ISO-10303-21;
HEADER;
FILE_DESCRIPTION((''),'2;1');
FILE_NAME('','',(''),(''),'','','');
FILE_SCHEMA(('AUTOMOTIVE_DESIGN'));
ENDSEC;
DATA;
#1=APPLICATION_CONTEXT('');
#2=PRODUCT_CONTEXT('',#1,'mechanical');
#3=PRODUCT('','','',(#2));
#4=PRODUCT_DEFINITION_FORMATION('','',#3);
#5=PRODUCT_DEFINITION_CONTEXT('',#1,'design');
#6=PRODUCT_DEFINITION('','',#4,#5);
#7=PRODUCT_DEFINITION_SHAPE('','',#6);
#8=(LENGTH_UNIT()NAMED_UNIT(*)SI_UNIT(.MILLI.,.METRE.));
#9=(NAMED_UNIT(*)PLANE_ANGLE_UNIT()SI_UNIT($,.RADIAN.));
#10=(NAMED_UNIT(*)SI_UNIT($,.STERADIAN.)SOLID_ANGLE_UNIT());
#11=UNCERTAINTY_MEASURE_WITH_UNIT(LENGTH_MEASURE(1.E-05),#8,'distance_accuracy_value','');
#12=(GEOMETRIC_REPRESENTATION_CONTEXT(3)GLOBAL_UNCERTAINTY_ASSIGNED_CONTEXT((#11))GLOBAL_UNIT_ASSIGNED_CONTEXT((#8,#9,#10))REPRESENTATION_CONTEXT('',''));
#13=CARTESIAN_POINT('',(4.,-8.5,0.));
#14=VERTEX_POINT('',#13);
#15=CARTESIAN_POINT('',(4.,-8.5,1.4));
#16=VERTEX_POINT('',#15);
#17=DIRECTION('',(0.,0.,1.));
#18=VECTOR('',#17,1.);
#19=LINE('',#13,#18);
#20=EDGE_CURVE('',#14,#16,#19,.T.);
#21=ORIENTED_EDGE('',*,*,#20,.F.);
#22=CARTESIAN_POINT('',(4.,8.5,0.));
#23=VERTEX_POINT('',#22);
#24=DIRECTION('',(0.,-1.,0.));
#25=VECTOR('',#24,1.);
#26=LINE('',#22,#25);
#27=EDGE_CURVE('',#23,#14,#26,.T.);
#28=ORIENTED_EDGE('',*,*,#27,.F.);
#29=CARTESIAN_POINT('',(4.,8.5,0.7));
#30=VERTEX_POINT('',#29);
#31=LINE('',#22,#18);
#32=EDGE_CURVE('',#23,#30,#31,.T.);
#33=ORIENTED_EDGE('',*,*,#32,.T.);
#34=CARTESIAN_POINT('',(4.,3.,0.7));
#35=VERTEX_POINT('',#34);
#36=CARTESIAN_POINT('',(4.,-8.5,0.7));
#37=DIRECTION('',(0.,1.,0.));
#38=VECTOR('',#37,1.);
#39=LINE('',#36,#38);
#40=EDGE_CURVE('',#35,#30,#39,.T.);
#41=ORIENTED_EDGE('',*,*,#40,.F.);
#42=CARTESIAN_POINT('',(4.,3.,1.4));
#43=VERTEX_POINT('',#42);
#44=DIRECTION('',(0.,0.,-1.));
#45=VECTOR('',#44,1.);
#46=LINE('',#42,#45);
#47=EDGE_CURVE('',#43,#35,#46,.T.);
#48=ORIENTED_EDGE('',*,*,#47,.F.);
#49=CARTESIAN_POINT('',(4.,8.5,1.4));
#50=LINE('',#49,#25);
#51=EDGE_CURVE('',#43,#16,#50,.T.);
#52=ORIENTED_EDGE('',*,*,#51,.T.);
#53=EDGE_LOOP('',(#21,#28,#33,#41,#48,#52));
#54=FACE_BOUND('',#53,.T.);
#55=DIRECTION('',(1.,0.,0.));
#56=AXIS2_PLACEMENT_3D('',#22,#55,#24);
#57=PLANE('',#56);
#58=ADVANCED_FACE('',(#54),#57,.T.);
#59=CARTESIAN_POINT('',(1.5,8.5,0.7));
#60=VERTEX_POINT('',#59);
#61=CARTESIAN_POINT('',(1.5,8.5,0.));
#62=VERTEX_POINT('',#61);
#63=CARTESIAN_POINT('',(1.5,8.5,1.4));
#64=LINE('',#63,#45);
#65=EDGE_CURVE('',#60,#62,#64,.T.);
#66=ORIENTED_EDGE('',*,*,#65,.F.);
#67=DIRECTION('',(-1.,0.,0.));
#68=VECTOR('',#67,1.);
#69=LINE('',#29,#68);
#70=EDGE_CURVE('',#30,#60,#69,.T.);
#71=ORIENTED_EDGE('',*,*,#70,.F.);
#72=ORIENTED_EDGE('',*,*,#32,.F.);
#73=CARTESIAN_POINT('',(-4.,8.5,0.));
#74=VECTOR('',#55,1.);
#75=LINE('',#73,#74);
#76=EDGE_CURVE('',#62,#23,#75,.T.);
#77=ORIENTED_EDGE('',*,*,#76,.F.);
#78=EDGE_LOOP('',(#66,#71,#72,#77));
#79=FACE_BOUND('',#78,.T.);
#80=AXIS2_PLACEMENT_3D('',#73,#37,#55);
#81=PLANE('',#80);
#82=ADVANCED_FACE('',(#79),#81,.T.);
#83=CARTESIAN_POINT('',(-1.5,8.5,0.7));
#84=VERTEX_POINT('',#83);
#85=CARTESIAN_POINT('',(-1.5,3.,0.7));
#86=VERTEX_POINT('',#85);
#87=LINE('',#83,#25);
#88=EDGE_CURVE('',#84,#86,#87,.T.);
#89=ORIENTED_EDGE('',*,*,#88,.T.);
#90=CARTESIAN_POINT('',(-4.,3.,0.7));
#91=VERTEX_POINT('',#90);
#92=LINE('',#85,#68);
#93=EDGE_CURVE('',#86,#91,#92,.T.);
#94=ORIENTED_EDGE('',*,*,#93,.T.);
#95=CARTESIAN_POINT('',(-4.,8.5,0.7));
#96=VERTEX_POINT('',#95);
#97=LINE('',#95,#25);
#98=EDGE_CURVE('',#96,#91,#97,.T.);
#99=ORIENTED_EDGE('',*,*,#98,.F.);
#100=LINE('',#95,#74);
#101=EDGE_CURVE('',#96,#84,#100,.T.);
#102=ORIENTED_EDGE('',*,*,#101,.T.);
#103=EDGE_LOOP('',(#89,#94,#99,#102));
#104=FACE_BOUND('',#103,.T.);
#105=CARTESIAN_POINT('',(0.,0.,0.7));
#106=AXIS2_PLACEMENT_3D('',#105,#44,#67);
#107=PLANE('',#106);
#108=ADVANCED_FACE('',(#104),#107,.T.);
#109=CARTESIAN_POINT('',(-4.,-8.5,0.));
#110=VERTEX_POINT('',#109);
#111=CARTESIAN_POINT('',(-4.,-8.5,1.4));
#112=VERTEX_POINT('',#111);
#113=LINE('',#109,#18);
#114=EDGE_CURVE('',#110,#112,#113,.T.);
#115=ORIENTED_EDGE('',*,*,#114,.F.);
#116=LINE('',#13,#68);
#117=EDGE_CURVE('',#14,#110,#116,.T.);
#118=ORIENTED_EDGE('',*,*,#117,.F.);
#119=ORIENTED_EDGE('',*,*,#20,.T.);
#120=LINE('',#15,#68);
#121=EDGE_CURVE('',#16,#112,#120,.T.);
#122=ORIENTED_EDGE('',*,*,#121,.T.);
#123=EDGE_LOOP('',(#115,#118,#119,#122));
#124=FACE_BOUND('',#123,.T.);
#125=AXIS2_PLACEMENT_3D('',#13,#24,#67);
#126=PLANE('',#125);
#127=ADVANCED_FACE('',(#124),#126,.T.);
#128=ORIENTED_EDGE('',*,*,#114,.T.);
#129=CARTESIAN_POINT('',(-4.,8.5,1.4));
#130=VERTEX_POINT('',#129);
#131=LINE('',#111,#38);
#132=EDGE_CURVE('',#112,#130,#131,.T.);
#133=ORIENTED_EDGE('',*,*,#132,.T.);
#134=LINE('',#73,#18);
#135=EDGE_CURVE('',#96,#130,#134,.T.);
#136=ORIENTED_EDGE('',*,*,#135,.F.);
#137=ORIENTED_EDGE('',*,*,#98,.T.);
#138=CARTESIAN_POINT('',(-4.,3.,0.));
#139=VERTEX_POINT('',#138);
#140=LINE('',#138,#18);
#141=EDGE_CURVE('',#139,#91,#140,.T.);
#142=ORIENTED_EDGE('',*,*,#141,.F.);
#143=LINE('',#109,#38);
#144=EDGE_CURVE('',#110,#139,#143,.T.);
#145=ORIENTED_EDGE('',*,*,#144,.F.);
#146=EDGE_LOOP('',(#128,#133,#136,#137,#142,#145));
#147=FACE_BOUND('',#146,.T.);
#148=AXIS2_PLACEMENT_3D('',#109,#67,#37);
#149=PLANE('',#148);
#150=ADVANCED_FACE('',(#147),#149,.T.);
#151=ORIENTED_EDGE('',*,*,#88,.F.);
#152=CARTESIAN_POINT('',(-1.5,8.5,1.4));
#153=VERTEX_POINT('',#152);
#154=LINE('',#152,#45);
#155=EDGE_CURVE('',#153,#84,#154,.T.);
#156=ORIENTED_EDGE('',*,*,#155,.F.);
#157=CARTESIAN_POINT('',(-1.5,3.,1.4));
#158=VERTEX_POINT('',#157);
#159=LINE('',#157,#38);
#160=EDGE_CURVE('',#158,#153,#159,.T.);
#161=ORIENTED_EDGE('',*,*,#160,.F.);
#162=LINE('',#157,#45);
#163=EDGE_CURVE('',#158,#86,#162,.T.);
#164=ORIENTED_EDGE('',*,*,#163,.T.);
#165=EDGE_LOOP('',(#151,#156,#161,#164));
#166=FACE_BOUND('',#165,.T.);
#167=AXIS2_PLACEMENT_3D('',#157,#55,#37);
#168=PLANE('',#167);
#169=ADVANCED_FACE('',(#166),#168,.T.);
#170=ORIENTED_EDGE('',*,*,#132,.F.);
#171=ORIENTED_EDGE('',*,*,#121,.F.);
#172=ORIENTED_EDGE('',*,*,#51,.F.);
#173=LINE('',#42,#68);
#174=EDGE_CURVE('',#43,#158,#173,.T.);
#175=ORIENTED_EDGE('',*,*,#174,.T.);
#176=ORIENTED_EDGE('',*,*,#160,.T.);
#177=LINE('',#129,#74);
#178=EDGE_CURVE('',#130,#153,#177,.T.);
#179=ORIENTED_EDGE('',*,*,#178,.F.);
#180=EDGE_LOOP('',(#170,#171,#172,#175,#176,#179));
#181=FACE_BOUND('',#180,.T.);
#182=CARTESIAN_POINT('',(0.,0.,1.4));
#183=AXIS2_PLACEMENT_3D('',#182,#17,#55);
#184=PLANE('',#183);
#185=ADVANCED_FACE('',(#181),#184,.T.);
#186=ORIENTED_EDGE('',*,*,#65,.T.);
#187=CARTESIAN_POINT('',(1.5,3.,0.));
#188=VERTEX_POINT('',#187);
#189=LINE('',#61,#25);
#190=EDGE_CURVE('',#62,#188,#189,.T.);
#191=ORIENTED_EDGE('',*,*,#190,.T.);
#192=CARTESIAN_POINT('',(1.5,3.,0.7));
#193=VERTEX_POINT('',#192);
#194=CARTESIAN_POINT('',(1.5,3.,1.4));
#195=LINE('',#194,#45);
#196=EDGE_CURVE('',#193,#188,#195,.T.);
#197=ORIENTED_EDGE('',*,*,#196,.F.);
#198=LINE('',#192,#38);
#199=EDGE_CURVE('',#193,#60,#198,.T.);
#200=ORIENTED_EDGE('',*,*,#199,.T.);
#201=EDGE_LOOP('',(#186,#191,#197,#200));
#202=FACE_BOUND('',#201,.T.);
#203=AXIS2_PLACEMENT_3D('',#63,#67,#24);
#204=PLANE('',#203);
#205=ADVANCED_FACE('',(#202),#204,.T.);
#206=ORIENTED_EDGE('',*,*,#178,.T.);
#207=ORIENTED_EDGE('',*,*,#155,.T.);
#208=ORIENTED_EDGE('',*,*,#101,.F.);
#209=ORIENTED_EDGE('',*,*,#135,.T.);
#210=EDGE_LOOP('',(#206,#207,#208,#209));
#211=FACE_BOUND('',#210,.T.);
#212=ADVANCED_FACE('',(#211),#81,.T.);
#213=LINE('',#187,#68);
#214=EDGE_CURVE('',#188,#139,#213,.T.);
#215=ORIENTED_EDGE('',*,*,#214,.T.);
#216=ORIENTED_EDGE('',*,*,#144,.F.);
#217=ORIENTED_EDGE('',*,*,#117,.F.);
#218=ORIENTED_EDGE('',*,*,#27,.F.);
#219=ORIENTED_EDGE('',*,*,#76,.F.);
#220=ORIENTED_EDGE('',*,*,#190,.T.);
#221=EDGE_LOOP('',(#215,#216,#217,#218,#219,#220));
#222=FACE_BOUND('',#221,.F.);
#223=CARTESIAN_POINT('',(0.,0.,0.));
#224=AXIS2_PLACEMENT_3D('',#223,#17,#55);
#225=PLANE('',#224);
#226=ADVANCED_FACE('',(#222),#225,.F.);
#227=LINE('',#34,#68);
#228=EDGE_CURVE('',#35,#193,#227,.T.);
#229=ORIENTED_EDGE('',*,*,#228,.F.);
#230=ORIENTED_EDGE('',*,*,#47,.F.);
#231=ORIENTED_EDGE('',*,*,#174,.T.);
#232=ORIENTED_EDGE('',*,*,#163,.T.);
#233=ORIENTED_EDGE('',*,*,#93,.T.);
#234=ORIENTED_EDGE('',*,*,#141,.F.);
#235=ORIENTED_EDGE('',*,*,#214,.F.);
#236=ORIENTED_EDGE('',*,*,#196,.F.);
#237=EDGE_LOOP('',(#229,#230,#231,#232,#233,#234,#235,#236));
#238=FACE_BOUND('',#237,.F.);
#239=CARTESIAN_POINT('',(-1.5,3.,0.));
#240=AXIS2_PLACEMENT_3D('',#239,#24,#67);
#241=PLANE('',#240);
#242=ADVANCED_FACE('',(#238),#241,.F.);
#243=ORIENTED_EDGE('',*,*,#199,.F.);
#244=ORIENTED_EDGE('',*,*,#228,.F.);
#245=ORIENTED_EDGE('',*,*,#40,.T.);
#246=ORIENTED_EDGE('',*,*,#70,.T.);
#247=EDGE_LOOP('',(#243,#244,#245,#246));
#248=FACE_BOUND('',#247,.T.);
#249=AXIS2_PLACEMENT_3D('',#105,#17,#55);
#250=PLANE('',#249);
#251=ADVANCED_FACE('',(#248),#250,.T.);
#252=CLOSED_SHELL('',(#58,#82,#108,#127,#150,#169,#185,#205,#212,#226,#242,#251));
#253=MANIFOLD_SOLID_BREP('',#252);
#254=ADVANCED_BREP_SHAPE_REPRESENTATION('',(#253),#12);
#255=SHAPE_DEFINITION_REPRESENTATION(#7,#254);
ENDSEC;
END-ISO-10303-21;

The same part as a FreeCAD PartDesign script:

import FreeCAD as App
import Part
import Sketcher

V = App.Vector
Q = App.Units.Quantity


def add_polygon(sketch, points):
    """Adds a closed chain of lines whose ends are joined by coincident constraints."""
    first, n = sketch.GeometryCount, len(points)
    for a, b in zip(points, points[1:] + points[:1]):
        sketch.addGeometry(Part.LineSegment(App.Vector(*a, 0), App.Vector(*b, 0)), False)
    for i in range(n):
        sketch.addConstraint(Sketcher.Constraint("Coincident", first + i, 2, first + (i + 1) % n, 1))

doc = App.newDocument("Part")
body = doc.addObject("PartDesign::Body", "Body")

sketch1 = body.newObject("Sketcher::SketchObject", "Sketch")
sketch1.AttachmentSupport = (doc.getObject("XY_Plane"), [""])
sketch1.MapMode = "FlatFace"
add_polygon(sketch1, [(4, 8.5), (-4, 8.5), (-4, -8.5), (4, -8.5)])
sketch1.addConstraint(Sketcher.Constraint("Horizontal", 0))
sketch1.addConstraint(Sketcher.Constraint("Vertical", 1))
sketch1.addConstraint(Sketcher.Constraint("Horizontal", 2))
sketch1.addConstraint(Sketcher.Constraint("Vertical", 3))
sketch1.addConstraint(Sketcher.Constraint("Symmetric", 0, 2, 2, 2, -1, 1))
sketch1.addConstraint(Sketcher.Constraint("DistanceX", 0, 2, 0, 1, Q("8 mm")))
sketch1.addConstraint(Sketcher.Constraint("DistanceY", 1, 2, 1, 1, Q("17 mm")))
pad1 = body.newObject("PartDesign::Pad", "Pad")
pad1.Profile = sketch1
pad1.Length = 1.4

sketch2 = body.newObject("Sketcher::SketchObject", "Sketch001")
sketch2.AttachmentSupport = (doc.getObject("XY_Plane"), [""])
sketch2.MapMode = "FlatFace"
sketch2.AttachmentOffset = App.Placement(V(0, 0, 1.4), App.Rotation())
add_polygon(sketch2, [(1.5, 3), (1.5, 8.5), (-1.5, 8.5), (-1.5, 3)])
sketch2.addConstraint(Sketcher.Constraint("Vertical", 0))
sketch2.addConstraint(Sketcher.Constraint("Horizontal", 1))
sketch2.addConstraint(Sketcher.Constraint("Vertical", 2))
sketch2.addConstraint(Sketcher.Constraint("Horizontal", 3))
sketch2.addConstraint(Sketcher.Constraint("DistanceX", 1, 2, 1, 1, Q("3 mm")))
sketch2.addConstraint(Sketcher.Constraint("DistanceY", 0, 1, 0, 2, Q("5.5 mm")))
sketch2.addConstraint(Sketcher.Constraint("DistanceY", -1, 1, 2, 2, Q("3 mm")))
sketch2.addConstraint(Sketcher.Constraint("DistanceX", -1, 1, 0, 2, Q("1.5 mm")))
pocket1 = body.newObject("PartDesign::Pocket", "Pocket")
pocket1.Profile = sketch2
pocket1.Length = 1.4

sketch3 = body.newObject("Sketcher::SketchObject", "Sketch002")
sketch3.AttachmentSupport = (doc.getObject("XY_Plane"), [""])
sketch3.MapMode = "FlatFace"
sketch3.AttachmentOffset = App.Placement(V(0, 0, 1.4), App.Rotation())
add_polygon(sketch3, [(4, 3), (4, 8.5), (1.5, 8.5), (1.5, 3)])
sketch3.addConstraint(Sketcher.Constraint("Vertical", 0))
sketch3.addConstraint(Sketcher.Constraint("Horizontal", 1))
sketch3.addConstraint(Sketcher.Constraint("Vertical", 2))
sketch3.addConstraint(Sketcher.Constraint("Horizontal", 3))
sketch3.addConstraint(Sketcher.Constraint("DistanceY", 0, 1, 0, 2, Q("5.5 mm")))
sketch3.addConstraint(Sketcher.Constraint("DistanceX", 1, 2, 1, 1, Q("2.5 mm")))
sketch3.addConstraint(Sketcher.Constraint("DistanceX", -1, 1, 0, 2, Q("4 mm")))
sketch3.addConstraint(Sketcher.Constraint("DistanceY", -1, 1, 2, 2, Q("3 mm")))
pocket2 = body.newObject("PartDesign::Pocket", "Pocket001")
pocket2.Profile = sketch3
pocket2.Length = 0.7

sketch4 = body.newObject("Sketcher::SketchObject", "Sketch003")
sketch4.AttachmentSupport = (doc.getObject("XY_Plane"), [""])
sketch4.MapMode = "FlatFace"
add_polygon(sketch4, [(-4, 3), (-4, 8.5), (-1.5, 8.5), (-1.5, 3)])
sketch4.addConstraint(Sketcher.Constraint("Vertical", 0))
sketch4.addConstraint(Sketcher.Constraint("Horizontal", 1))
sketch4.addConstraint(Sketcher.Constraint("Vertical", 2))
sketch4.addConstraint(Sketcher.Constraint("Horizontal", 3))
sketch4.addConstraint(Sketcher.Constraint("DistanceX", 1, 1, 1, 2, Q("2.5 mm")))
sketch4.addConstraint(Sketcher.Constraint("DistanceY", 0, 1, 0, 2, Q("5.5 mm")))
sketch4.addConstraint(Sketcher.Constraint("DistanceX", 0, 2, -1, 1, Q("4 mm")))
sketch4.addConstraint(Sketcher.Constraint("DistanceY", -1, 1, 2, 2, Q("3 mm")))
pocket3 = body.newObject("PartDesign::Pocket", "Pocket002")
pocket3.Profile = sketch4
pocket3.Length = 0.7
pocket3.Reversed = True

doc.recompute()
